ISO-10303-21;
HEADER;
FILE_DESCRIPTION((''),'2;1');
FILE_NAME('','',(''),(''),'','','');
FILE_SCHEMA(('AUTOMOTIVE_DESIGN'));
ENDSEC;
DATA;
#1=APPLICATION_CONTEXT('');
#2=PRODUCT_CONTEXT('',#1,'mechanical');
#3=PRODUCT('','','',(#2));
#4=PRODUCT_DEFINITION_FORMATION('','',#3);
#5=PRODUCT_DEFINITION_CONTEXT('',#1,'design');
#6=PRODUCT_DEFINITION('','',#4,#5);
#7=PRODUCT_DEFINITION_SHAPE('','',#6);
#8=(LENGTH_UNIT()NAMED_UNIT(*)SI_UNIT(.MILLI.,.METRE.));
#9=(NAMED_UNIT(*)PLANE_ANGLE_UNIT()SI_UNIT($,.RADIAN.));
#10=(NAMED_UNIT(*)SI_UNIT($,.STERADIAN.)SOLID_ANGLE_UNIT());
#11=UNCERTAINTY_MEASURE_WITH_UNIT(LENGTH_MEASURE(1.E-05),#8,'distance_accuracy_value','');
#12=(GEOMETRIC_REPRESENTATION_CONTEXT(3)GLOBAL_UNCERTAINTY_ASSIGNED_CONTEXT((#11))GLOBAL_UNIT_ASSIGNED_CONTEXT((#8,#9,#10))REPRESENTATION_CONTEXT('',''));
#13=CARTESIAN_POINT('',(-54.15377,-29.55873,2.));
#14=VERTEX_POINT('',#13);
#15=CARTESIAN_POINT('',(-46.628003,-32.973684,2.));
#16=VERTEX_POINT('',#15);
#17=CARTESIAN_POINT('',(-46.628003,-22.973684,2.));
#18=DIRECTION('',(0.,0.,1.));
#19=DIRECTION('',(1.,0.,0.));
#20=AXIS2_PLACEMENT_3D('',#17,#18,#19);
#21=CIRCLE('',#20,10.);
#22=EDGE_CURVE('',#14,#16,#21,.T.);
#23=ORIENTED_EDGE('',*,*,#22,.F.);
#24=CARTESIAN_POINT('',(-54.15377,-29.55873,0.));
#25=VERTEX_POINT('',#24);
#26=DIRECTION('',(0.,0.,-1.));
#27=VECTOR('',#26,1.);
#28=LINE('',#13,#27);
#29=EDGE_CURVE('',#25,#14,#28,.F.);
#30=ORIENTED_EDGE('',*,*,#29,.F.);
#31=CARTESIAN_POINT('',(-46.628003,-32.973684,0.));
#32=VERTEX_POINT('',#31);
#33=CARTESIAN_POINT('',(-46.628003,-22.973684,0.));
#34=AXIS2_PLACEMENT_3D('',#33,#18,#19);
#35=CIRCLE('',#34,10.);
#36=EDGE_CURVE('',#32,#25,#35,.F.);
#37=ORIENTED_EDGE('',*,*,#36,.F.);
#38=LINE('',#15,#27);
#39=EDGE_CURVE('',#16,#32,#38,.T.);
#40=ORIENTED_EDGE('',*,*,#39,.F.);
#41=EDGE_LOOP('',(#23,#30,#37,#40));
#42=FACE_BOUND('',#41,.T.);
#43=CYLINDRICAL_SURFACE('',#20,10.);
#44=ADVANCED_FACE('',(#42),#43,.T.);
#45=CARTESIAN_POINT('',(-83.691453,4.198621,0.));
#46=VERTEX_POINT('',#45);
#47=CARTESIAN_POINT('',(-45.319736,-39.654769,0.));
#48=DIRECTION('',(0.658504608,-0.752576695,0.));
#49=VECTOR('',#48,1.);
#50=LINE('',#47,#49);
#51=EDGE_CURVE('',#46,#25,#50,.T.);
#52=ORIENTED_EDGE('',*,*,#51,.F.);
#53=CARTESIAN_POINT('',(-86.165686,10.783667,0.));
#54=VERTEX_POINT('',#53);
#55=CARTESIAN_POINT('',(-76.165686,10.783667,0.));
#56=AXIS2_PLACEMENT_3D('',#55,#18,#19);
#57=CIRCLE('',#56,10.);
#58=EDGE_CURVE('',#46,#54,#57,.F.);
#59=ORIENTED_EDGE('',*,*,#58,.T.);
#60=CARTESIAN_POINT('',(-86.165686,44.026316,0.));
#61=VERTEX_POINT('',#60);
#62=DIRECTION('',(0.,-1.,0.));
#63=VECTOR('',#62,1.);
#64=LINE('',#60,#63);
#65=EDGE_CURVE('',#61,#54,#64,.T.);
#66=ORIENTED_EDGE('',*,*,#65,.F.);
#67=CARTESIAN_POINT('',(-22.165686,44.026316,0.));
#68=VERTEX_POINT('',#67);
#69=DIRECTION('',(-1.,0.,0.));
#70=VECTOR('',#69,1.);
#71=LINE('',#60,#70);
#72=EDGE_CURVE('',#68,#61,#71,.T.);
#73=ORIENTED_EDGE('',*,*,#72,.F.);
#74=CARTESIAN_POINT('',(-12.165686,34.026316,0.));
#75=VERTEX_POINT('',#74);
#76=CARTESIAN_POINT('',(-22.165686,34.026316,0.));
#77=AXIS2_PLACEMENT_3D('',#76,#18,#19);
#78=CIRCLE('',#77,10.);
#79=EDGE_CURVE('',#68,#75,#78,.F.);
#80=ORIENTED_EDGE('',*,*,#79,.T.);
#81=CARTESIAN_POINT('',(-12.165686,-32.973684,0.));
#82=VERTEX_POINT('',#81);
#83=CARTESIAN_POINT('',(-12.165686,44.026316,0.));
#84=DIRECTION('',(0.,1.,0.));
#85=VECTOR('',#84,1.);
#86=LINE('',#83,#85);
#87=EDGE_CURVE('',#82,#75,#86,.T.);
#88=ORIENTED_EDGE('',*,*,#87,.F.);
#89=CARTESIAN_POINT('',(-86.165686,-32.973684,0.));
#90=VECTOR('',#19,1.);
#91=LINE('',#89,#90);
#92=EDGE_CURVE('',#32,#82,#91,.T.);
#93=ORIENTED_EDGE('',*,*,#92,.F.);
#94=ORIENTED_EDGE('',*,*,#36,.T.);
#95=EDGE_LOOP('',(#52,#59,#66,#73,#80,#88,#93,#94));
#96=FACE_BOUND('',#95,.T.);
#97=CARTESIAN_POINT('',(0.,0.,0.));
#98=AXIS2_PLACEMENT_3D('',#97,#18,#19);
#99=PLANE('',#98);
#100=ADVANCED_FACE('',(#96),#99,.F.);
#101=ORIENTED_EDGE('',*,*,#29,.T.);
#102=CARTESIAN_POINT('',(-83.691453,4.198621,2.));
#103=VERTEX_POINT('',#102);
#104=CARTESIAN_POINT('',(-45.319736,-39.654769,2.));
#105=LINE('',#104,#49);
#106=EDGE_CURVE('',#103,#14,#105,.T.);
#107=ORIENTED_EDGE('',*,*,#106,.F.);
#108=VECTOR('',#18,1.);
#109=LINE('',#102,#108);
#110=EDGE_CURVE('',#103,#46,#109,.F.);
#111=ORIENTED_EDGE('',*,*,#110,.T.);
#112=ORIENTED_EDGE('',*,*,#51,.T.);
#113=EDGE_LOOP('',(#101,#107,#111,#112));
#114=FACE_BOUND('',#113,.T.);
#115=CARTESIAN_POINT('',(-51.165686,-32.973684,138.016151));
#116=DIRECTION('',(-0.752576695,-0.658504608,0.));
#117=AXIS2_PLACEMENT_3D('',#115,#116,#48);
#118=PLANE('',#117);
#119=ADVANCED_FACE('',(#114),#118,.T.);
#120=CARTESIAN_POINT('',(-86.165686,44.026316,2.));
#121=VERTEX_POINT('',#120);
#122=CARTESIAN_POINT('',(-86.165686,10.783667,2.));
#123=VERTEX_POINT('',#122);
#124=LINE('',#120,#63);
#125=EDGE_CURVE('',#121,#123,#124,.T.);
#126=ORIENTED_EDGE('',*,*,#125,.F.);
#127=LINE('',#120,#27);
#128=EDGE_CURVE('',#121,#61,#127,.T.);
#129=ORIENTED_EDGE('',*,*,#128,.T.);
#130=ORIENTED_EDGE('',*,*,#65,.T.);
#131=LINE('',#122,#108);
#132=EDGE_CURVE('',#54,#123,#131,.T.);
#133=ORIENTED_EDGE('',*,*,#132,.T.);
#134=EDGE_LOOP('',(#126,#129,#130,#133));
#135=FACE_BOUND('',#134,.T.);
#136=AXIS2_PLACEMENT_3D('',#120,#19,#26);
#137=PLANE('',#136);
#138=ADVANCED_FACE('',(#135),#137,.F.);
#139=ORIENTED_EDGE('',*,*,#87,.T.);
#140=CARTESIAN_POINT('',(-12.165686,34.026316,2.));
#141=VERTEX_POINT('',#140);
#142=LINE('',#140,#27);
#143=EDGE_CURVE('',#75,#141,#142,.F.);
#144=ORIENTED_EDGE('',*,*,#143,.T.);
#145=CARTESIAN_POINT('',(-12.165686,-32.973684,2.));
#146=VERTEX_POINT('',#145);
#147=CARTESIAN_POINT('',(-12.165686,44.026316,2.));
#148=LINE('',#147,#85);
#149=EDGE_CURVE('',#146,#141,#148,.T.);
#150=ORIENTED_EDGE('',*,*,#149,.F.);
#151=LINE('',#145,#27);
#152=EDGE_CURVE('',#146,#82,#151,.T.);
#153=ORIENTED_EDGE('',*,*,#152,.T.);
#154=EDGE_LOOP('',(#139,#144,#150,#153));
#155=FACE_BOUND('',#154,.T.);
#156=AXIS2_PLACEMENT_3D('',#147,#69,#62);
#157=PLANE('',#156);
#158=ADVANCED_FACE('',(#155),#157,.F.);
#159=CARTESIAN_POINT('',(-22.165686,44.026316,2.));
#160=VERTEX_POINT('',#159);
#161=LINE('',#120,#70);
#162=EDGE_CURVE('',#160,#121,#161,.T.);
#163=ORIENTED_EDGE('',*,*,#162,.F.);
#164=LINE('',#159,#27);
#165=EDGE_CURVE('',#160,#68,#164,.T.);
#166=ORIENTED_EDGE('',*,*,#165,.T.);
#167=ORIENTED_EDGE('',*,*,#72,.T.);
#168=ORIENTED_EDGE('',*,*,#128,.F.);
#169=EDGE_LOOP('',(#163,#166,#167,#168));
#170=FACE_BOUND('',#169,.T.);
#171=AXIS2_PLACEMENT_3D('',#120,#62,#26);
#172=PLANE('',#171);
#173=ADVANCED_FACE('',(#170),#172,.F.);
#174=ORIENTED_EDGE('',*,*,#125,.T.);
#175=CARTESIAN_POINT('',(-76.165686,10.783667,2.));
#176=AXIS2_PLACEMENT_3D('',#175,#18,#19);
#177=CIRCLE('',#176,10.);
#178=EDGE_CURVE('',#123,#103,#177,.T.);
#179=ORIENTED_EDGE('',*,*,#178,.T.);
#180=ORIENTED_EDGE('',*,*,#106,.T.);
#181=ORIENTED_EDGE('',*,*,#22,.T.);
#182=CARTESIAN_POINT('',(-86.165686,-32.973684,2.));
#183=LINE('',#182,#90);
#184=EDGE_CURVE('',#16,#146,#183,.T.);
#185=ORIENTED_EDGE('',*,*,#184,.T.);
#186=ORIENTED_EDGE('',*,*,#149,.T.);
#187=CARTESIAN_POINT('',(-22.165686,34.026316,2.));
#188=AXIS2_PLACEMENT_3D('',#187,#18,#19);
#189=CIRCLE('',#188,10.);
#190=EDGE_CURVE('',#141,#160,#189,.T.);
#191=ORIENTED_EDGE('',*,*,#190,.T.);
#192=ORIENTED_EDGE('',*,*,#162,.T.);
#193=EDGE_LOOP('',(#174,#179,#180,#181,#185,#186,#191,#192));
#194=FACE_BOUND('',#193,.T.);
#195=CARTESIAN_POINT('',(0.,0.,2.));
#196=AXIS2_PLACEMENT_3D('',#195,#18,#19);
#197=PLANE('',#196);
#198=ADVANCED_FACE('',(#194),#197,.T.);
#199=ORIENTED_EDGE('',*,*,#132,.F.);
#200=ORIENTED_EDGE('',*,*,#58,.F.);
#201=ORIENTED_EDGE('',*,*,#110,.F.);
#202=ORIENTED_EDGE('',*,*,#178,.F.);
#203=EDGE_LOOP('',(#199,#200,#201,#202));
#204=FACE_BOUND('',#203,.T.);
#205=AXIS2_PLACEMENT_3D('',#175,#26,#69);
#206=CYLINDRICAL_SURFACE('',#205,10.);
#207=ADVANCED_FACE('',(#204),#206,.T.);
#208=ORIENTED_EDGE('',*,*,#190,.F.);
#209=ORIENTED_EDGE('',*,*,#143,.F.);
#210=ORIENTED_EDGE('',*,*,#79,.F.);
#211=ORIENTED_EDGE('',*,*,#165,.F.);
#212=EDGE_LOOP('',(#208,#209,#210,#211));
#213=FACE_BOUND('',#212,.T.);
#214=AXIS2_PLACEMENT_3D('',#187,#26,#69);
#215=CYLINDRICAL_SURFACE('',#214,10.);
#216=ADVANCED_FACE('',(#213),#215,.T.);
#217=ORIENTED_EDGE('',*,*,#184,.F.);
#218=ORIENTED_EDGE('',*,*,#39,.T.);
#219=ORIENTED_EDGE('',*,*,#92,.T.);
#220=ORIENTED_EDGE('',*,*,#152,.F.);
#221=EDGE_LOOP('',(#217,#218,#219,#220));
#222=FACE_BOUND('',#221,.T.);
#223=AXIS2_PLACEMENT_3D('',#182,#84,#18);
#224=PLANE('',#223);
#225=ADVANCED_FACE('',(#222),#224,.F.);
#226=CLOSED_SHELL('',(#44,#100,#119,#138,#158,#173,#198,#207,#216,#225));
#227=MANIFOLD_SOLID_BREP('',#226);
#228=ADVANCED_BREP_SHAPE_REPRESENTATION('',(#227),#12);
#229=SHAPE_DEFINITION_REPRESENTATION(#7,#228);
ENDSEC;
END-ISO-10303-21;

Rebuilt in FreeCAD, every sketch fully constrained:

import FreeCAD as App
import Part
import Sketcher

V = App.Vector


def edges_at(feature, points):
    """Names of the edges that pass closest to the given points."""
    edges = feature.Shape.Edges
    near = lambda p: min(range(len(edges)), key=lambda i: edges[i].distToShape(Part.Vertex(*p))[0])
    return sorted({f"Edge{near(p) + 1}" for p in points})

doc = App.newDocument("Part")
body = doc.addObject("PartDesign::Body", "Body")

sketch1 = body.newObject("Sketcher::SketchObject", "Sketch")
sketch1.AttachmentSupport = (doc.getObject("XY_Plane"), [""])
sketch1.MapMode = "FlatFace"
sketch1.addGeometry([
    Part.LineSegment(V(-86, 44, 0), V(-86, -33, 0)),
    Part.LineSegment(V(-86, -33, 0), V(-12, -33, 0)),
    Part.LineSegment(V(-12, -33, 0), V(-12, 44, 0)),
    Part.LineSegment(V(-12, 44, 0), V(-86, 44, 0)),
], False)
sketch1.addConstraint([
    Sketcher.Constraint("Coincident", 0, 2, 1, 1),
    Sketcher.Constraint("Coincident", 1, 2, 2, 1),
    Sketcher.Constraint("Coincident", 2, 2, 3, 1),
    Sketcher.Constraint("Coincident", 3, 2, 0, 1),
    Sketcher.Constraint("Vertical", 0),
    Sketcher.Constraint("Horizontal", 1),
    Sketcher.Constraint("Vertical", 2),
    Sketcher.Constraint("Horizontal", 3),
    Sketcher.Constraint("DistanceX", 1, 1, 1, 2, 74.0),
    Sketcher.Constraint("DistanceY", 0, 2, 0, 1, 77.0),
    Sketcher.Constraint("DistanceX", 0, 2, -1, 1, 86.165686),
    Sketcher.Constraint("DistanceY", 0, 2, -1, 1, 32.973684),
])
pad1 = body.newObject("PartDesign::Pad", "Pad")
pad1.Profile = sketch1
pad1.Length = 2

sketch2 = body.newObject("Sketcher::SketchObject", "Sketch001")
sketch2.AttachmentSupport = (doc.getObject("XY_Plane"), [""])
sketch2.MapMode = "FlatFace"
sketch2.AttachmentOffset = App.Placement(V(0, 0, 2), App.Rotation())
sketch2.addGeometry([
    Part.LineSegment(V(69, -170, 0), V(-51, -33, 0)),
    Part.LineSegment(V(-51, -33, 0), V(-86, 7, 0)),
    Part.LineSegment(V(-86, 7, 0), V(-206, 144, 0)),
    Part.LineSegment(V(-206, 144, 0), V(-481, -96, 0)),
    Part.LineSegment(V(-481, -96, 0), V(-206, -411, 0)),
    Part.LineSegment(V(-206, -411, 0), V(69, -170, 0)),
], False)
sketch2.addConstraint([
    Sketcher.Constraint("Coincident", 0, 2, 1, 1),
    Sketcher.Constraint("Coincident", 1, 2, 2, 1),
    Sketcher.Constraint("Coincident", 2, 2, 3, 1),
    Sketcher.Constraint("Coincident", 3, 2, 4, 1),
    Sketcher.Constraint("Coincident", 4, 2, 5, 1),
    Sketcher.Constraint("Coincident", 5, 2, 0, 1),
    Sketcher.Constraint("Parallel", 0, 1),
    Sketcher.Constraint("Parallel", 1, 2),
    Sketcher.Constraint("Perpendicular", 2, 3),
    Sketcher.Constraint("Perpendicular", 3, 4),
    Sketcher.Constraint("Perpendicular", 4, 5),
    Sketcher.Constraint("Equal", 0, 2),
    Sketcher.Constraint("DistanceX", 1, 2, 0, 2, 35.0),
    Sketcher.Constraint("DistanceY", 0, 2, 1, 2, 40.0),
    Sketcher.Constraint("Distance", 3, 365.25353),
    Sketcher.Constraint("Distance", 4, 418.404259),
    Sketcher.Constraint("DistanceX", 2, 2, -1, 1, 206.426252),
    Sketcher.Constraint("DistanceY", 3, 2, -1, 1, 96.05417),
])
pocket1 = body.newObject("PartDesign::Pocket", "Pocket")
pocket1.Profile = sketch2
pocket1.Type = "ThroughAll"
pocket1.Midplane = True
doc.recompute()

fillet = body.newObject("PartDesign::Fillet", "Fillet")
fillet.Base = (pocket1, edges_at(pocket1, [(-86.166, 7.026, 1)]))
fillet.Radius = 10
doc.recompute()

fillet2 = body.newObject("PartDesign::Fillet", "Fillet001")
fillet2.Base = (fillet, edges_at(fillet, [(-51.166, -32.974, 1)]))
fillet2.Radius = 10
doc.recompute()

fillet3 = body.newObject("PartDesign::Fillet", "Fillet002")
fillet3.Base = (fillet2, edges_at(fillet2, [(-12.166, 44.026, 1)]))
fillet3.Radius = 10

doc.recompute()
